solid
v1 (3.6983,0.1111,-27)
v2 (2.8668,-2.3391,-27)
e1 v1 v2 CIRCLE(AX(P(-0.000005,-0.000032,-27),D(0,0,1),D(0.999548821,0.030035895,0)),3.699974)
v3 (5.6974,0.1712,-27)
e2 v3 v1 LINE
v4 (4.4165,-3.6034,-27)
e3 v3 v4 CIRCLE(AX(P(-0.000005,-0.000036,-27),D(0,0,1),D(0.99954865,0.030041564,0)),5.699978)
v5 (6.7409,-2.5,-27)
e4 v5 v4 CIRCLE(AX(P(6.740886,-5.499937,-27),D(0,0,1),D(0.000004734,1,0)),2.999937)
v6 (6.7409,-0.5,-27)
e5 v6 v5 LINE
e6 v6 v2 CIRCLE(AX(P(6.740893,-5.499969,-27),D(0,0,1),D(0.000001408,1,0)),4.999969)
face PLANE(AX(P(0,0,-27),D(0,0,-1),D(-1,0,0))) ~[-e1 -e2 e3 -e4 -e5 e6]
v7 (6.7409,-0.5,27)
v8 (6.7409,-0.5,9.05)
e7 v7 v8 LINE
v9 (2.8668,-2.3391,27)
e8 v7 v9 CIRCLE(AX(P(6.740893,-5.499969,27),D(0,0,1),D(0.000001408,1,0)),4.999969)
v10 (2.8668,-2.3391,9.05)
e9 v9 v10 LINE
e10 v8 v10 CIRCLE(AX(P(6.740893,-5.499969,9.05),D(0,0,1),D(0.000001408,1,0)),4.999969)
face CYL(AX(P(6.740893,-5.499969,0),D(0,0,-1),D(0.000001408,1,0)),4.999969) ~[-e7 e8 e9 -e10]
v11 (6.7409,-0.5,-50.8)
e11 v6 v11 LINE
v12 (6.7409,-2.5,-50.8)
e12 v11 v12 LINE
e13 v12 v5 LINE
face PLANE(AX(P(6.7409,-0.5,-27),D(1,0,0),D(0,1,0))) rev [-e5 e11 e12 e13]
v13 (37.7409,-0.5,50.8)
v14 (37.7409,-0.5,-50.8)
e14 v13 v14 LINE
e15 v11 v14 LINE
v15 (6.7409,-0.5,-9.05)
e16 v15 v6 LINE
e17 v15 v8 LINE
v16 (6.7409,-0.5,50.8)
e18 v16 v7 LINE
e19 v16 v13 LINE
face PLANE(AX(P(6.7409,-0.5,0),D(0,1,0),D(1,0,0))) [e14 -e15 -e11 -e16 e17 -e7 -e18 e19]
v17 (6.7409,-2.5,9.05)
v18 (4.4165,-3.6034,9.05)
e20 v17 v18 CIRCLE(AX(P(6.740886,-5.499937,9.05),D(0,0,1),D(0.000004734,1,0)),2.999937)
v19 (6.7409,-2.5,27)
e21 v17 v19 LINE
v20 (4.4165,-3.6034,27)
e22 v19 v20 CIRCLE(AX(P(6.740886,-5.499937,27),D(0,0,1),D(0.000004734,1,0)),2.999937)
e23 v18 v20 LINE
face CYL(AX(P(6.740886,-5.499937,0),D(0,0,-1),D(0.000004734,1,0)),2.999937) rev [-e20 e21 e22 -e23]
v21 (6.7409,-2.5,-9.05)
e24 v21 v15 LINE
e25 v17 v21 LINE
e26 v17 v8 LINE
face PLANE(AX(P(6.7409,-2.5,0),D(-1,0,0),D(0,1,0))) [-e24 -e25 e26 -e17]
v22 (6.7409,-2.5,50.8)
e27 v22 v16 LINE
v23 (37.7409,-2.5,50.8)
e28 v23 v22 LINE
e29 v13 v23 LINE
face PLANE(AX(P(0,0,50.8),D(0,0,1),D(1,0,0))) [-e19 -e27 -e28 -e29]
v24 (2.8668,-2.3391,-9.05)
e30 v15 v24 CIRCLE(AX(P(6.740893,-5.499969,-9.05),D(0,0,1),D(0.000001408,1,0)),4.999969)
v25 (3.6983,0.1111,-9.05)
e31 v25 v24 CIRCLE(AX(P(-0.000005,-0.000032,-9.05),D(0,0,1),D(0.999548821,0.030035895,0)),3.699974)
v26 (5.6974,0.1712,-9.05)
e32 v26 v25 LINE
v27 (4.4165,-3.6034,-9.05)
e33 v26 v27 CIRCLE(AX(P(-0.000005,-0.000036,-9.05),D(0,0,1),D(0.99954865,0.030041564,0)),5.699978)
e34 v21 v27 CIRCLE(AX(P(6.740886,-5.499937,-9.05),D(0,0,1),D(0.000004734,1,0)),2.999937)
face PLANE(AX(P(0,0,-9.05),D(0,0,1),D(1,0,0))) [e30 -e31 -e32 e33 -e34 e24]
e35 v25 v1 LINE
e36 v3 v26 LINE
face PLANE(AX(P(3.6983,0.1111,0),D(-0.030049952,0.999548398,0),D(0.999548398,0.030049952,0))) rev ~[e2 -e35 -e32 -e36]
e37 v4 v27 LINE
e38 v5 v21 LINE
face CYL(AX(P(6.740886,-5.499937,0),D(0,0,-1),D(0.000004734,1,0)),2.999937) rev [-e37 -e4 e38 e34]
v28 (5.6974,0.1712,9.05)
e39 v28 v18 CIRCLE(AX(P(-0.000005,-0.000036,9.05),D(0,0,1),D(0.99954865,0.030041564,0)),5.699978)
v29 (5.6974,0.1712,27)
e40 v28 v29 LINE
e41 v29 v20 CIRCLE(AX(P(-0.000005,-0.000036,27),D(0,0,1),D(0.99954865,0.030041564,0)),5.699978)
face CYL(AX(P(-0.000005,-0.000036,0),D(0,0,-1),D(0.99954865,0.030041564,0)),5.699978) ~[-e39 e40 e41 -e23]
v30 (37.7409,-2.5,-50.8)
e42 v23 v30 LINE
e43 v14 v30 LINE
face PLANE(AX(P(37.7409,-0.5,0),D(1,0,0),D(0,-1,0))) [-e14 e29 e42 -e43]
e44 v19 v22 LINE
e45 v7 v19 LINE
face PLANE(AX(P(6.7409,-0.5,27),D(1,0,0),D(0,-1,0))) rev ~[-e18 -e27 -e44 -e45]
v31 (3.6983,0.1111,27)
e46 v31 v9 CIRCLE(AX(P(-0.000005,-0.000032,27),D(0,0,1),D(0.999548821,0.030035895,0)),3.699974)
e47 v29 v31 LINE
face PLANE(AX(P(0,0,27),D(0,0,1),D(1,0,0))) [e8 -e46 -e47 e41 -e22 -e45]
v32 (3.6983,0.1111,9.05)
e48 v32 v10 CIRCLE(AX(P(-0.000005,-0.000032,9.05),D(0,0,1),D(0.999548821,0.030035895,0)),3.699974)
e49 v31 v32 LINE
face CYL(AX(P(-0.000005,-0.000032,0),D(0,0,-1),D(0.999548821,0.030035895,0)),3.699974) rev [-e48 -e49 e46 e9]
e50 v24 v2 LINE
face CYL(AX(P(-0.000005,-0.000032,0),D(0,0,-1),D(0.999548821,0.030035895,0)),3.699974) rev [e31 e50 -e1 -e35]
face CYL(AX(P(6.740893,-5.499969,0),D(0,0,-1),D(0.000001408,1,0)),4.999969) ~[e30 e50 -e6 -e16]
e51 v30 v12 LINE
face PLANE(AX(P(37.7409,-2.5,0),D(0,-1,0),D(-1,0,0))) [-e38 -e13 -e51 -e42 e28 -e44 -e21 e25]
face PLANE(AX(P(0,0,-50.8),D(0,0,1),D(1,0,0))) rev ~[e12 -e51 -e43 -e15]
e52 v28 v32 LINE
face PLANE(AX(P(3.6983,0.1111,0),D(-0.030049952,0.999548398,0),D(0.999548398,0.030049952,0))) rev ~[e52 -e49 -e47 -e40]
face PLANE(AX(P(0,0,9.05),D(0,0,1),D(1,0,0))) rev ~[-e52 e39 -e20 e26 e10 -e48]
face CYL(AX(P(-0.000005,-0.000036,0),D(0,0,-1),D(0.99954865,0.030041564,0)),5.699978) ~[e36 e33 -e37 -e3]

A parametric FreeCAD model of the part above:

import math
import FreeCAD as App
import Part
import Sketcher

V = App.Vector
Q = App.Units.Quantity

doc = App.newDocument("Part")
body = doc.addObject("PartDesign::Body", "Body")

sketch1 = body.newObject("Sketcher::SketchObject", "Sketch")
sketch1.AttachmentSupport = (doc.getObject("XY_Plane"), [""])
sketch1.MapMode = "FlatFace"
sketch1.addGeometry(Part.LineSegment(V(3.7, 0.1, 0), V(5.7, 0.2, 0)), False)
sketch1.addGeometry(Part.ArcOfCircle(Part.Circle(V(0, 0, 0), V(0, 0, 1), 5.7), math.radians(2), math.radians(321)), False)
sketch1.addGeometry(Part.ArcOfCircle(Part.Circle(V(6.7, -5.5, 0), V(0, 0, 1), 3), math.radians(90), math.radians(141)), False)
sketch1.addGeometry(Part.LineSegment(V(6.7, -2.5, 0), V(37.7, -2.5, 0)), False)
sketch1.addGeometry(Part.LineSegment(V(37.7, -2.5, 0), V(37.7, -0.5, 0)), False)
sketch1.addGeometry(Part.LineSegment(V(37.7, -0.5, 0), V(6.7, -0.5, 0)), False)
sketch1.addGeometry(Part.ArcOfCircle(Part.Circle(V(6.7, -5.5, 0), V(0, 0, 1), 5), math.radians(90), math.radians(141)), False)
sketch1.addGeometry(Part.ArcOfCircle(Part.Circle(V(0, 0, 0), V(0, 0, 1), 3.7), math.radians(2), math.radians(321)), False)
sketch1.addConstraint(Sketcher.Constraint("Coincident", 0, 2, 1, 1))
sketch1.addConstraint(Sketcher.Constraint("Tangent", 1, 2, 2, 2))
sketch1.addConstraint(Sketcher.Constraint("Tangent", 2, 1, 3, 1))
sketch1.addConstraint(Sketcher.Constraint("Coincident", 3, 2, 4, 1))
sketch1.addConstraint(Sketcher.Constraint("Coincident", 4, 2, 5, 1))
sketch1.addConstraint(Sketcher.Constraint("Tangent", 5, 2, 6, 1))
sketch1.addConstraint(Sketcher.Constraint("Tangent", 6, 2, 7, 2))
sketch1.addConstraint(Sketcher.Constraint("Coincident", 7, 1, 0, 1))
sketch1.addConstraint(Sketcher.Constraint("Horizontal", 3))
sketch1.addConstraint(Sketcher.Constraint("Vertical", 4))
sketch1.addConstraint(Sketcher.Constraint("Horizontal", 5))
sketch1.addConstraint(Sketcher.Constraint("Coincident", 1, 3, -1, 1))
sketch1.addConstraint(Sketcher.Constraint("Coincident", 7, 3, -1, 1))
sketch1.addConstraint(Sketcher.Constraint("Coincident", 6, 3, 2, 3))
sketch1.addConstraint(Sketcher.Constraint("Radius", 2, Q("3 mm")))
sketch1.addConstraint(Sketcher.Constraint("Radius", 6, Q("5 mm")))
sketch1.addConstraint(Sketcher.Constraint("Radius", 1, Q("5.7 mm")))
sketch1.addConstraint(Sketcher.Constraint("DistanceX", 3, 1, 3, 2, Q("31 mm")))
sketch1.addConstraint(Sketcher.Constraint("DistanceY", 4, 2, -1, 1, Q("0.5 mm")))
sketch1.addConstraint(Sketcher.Constraint("DistanceY", 7, 1, 0, 2, Q("0.06 mm")))
sketch1.addConstraint(Sketcher.Constraint("DistanceY", -1, 1, 7, 1, Q("0.111 mm")))
pad1 = body.newObject("PartDesign::Pad", "Pad")
pad1.Profile = sketch1
pad1.Length = 101.6
pad1.Midplane = True

sketch2 = body.newObject("Sketcher::SketchObject", "Sketch001")
sketch2.AttachmentSupport = (doc.getObject("XY_Plane"), [""])
sketch2.MapMode = "FlatFace"
sketch2.AttachmentOffset = App.Placement(V(0, 0, 27), App.Rotation())
sketch2.addGeometry(Part.ArcOfCircle(Part.Circle(V(6.7, -5.5, 0), V(0, 0, 1), 3), math.radians(90), math.radians(141)), False)
sketch2.addGeometry(Part.LineSegment(V(6.7, -2.5, 0), V(6.7, -0.5, 0)), False)
sketch2.addGeometry(Part.ArcOfCircle(Part.Circle(V(6.7, -5.5, 0), V(0, 0, 1), 5), math.radians(90), math.radians(141)), False)
sketch2.addGeometry(Part.ArcOfCircle(Part.Circle(V(0, 0, 0), V(0, 0, 1), 3.7), math.radians(2), math.radians(321)), False)
sketch2.addGeometry(Part.LineSegment(V(3.7, 0.1, 0), V(5.7, 0.2, 0)), False)
sketch2.addGeometry(Part.ArcOfCircle(Part.Circle(V(0, 0, 0), V(0, 0, 1), 5.7), math.radians(2), math.radians(321)), False)
sketch2.addConstraint(Sketcher.Constraint("Coincident", 0, 1, 1, 1))
sketch2.addConstraint(Sketcher.Constraint("Coincident", 1, 2, 2, 1))
sketch2.addConstraint(Sketcher.Constraint("Tangent", 2, 2, 3, 2))
sketch2.addConstraint(Sketcher.Constraint("Coincident", 3, 1, 4, 1))
sketch2.addConstraint(Sketcher.Constraint("Coincident", 4, 2, 5, 1))
sketch2.addConstraint(Sketcher.Constraint("Tangent", 5, 2, 0, 2))
sketch2.addConstraint(Sketcher.Constraint("Vertical", 1))
sketch2.addConstraint(Sketcher.Constraint("Coincident", 3, 3, -1, 1))
sketch2.addConstraint(Sketcher.Constraint("Coincident", 5, 3, -1, 1))
sketch2.addConstraint(Sketcher.Constraint("Coincident", 2, 3, 0, 3))
sketch2.addConstraint(Sketcher.Constraint("Vertical", 2, 3, 0, 1))
sketch2.addConstraint(Sketcher.Constraint("Radius", 0, Q("3 mm")))
sketch2.addConstraint(Sketcher.Constraint("Radius", 2, Q("5 mm")))
sketch2.addConstraint(Sketcher.Constraint("Radius", 3, Q("3.7 mm")))
sketch2.addConstraint(Sketcher.Constraint("DistanceY", 0, 3, -1, 1, Q("5.5 mm")))
sketch2.addConstraint(Sketcher.Constraint("DistanceY", 3, 1, 4, 2, Q("0.06 mm")))
sketch2.addConstraint(Sketcher.Constraint("DistanceY", -1, 1, 3, 1, Q("0.111 mm")))
pocket1 = body.newObject("PartDesign::Pocket", "Pocket")
pocket1.Profile = sketch2
pocket1.Type = "ThroughAll"
pocket1.Reversed = True
doc.recompute()

mirrored = body.newObject("PartDesign::Mirrored", "Mirrored")
mirrored.Originals = [pocket1]
mirrored.MirrorPlane = (doc.getObject("XY_Plane"), [""])
body.Tip = mirrored

sketch3 = body.newObject("Sketcher::SketchObject", "Sketch002")
sketch3.AttachmentSupport = (doc.getObject("XY_Plane"), [""])
sketch3.MapMode = "FlatFace"
sketch3.addGeometry(Part.LineSegment(V(6.7, -2.5, 0), V(6.7, -0.5, 0)), False)
sketch3.addGeometry(Part.ArcOfCircle(Part.Circle(V(6.7, -5.5, 0), V(0, 0, 1), 5), math.radians(90), math.radians(141)), False)
sketch3.addGeometry(Part.ArcOfCircle(Part.Circle(V(0, 0, 0), V(0, 0, 1), 3.7), math.radians(2), math.radians(321)), False)
sketch3.addGeometry(Part.LineSegment(V(3.7, 0.1, 0), V(5.7, 0.2, 0)), False)
sketch3.addGeometry(Part.ArcOfCircle(Part.Circle(V(0, 0, 0), V(0, 0, 1), 5.7), math.radians(2), math.radians(321)), False)
sketch3.addGeometry(Part.ArcOfCircle(Part.Circle(V(6.7, -5.5, 0), V(0, 0, 1), 3), math.radians(90), math.radians(141)), False)
sketch3.addConstraint(Sketcher.Constraint("Coincident", 0, 2, 1, 1))
sketch3.addConstraint(Sketcher.Constraint("Tangent", 1, 2, 2, 2))
sketch3.addConstraint(Sketcher.Constraint("Coincident", 2, 1, 3, 1))
sketch3.addConstraint(Sketcher.Constraint("Coincident", 3, 2, 4, 1))
sketch3.addConstraint(Sketcher.Constraint("Tangent", 4, 2, 5, 2))
sketch3.addConstraint(Sketcher.Constraint("Coincident", 5, 1, 0, 1))
sketch3.addConstraint(Sketcher.Constraint("Vertical", 0))
sketch3.addConstraint(Sketcher.Constraint("Coincident", 2, 3, -1, 1))
sketch3.addConstraint(Sketcher.Constraint("Coincident", 4, 3, -1, 1))
sketch3.addConstraint(Sketcher.Constraint("Coincident", 5, 3, 1, 3))
sketch3.addConstraint(Sketcher.Constraint("Vertical", 5, 3, 0, 2))
sketch3.addConstraint(Sketcher.Constraint("Radius", 1, Q("5 mm")))
sketch3.addConstraint(Sketcher.Constraint("Radius", 5, Q("3 mm")))
sketch3.addConstraint(Sketcher.Constraint("Radius", 2, Q("3.7 mm")))
sketch3.addConstraint(Sketcher.Constraint("DistanceY", 1, 3, -1, 1, Q("5.5 mm")))
sketch3.addConstraint(Sketcher.Constraint("DistanceY", 2, 1, 3, 2, Q("0.06 mm")))
sketch3.addConstraint(Sketcher.Constraint("DistanceY", -1, 1, 2, 1, Q("0.111 mm")))
pocket2 = body.newObject("PartDesign::Pocket", "Pocket001")
pocket2.Profile = sketch3
pocket2.Length = 18.1
pocket2.Midplane = True

doc.recompute()
